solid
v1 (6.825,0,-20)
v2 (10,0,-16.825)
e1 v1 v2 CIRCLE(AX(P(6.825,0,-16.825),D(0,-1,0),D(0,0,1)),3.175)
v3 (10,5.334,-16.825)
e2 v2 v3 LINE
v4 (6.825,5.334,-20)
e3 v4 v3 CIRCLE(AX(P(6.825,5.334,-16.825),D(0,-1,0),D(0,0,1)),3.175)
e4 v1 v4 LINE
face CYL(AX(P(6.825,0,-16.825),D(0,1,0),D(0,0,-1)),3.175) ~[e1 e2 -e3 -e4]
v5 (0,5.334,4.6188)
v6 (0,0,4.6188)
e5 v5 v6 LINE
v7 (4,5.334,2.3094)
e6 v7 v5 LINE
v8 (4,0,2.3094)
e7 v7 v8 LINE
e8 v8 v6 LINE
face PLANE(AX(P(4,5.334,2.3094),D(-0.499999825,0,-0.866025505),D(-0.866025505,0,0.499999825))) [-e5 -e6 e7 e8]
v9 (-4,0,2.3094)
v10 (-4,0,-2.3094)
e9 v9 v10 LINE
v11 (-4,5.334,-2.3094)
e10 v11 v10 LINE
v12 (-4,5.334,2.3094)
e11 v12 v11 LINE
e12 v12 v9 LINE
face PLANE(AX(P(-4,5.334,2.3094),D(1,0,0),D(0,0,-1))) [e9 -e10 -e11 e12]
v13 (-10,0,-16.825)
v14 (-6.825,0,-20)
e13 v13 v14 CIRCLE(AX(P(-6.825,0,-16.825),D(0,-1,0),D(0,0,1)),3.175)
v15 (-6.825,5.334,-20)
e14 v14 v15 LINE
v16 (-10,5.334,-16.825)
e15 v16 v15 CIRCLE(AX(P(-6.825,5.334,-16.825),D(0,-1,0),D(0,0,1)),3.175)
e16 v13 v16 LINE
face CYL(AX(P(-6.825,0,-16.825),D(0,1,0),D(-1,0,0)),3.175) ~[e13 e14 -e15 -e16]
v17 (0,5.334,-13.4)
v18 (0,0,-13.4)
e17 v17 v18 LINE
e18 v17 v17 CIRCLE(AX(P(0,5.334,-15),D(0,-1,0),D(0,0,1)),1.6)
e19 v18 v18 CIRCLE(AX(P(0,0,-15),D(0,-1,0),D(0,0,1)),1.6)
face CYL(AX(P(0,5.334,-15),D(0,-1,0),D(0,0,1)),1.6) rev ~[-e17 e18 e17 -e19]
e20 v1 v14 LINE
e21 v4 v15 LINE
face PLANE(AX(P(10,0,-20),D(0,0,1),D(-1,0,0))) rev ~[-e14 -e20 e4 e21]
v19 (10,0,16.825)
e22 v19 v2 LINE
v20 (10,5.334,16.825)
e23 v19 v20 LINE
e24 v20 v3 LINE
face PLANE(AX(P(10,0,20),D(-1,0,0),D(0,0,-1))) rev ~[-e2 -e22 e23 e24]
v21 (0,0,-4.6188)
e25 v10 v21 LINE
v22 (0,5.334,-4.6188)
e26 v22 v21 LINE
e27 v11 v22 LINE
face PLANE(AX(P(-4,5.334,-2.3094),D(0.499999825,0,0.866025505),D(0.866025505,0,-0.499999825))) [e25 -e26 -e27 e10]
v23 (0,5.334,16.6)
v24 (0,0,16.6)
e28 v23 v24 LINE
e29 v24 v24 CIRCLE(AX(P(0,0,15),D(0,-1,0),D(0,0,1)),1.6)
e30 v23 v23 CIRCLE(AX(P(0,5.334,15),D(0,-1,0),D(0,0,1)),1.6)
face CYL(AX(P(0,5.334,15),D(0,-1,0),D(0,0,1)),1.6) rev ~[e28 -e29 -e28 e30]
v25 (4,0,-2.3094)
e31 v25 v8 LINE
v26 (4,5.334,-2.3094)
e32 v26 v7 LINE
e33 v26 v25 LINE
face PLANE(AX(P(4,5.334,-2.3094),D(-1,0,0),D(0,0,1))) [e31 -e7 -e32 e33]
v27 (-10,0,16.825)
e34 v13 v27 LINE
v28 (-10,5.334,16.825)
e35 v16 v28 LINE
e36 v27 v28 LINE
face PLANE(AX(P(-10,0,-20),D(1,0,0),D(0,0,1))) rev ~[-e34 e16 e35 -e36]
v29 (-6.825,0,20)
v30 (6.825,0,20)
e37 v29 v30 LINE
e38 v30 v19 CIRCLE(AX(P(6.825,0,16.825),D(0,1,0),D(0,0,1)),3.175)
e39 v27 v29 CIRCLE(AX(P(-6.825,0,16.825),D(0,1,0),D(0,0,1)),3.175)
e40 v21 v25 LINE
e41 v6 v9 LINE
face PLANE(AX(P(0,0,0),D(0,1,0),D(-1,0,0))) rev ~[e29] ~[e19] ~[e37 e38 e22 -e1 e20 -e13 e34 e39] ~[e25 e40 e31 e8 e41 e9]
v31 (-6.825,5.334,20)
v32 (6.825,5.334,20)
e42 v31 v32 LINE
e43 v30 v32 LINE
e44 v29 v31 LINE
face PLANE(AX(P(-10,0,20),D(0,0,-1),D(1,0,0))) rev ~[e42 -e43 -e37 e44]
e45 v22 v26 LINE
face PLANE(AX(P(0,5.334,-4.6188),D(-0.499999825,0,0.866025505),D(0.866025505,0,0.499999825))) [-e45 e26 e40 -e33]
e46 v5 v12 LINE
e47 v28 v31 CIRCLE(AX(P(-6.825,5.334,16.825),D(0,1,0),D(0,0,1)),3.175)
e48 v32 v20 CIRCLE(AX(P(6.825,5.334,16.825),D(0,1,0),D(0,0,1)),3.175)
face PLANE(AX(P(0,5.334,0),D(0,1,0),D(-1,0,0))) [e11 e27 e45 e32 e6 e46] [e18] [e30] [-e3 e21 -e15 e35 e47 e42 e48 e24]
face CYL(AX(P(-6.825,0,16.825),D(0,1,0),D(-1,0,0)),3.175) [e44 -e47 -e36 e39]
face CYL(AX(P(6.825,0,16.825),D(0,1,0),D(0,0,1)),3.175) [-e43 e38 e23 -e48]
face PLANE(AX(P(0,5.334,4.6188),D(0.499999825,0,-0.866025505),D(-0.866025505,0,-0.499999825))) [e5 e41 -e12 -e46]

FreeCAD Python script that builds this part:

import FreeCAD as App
import Part
import Sketcher

V = App.Vector
Q = App.Units.Quantity


def edges_at(feature, points):
    """Names of the edges that pass closest to the given points."""
    edges = feature.Shape.Edges
    near = lambda p: min(range(len(edges)), key=lambda i: edges[i].distToShape(Part.Vertex(*p))[0])
    return sorted({f"Edge{near(p) + 1}" for p in points})


def add_polygon(sketch, points):
    """Adds a closed chain of lines whose ends are joined by coincident constraints."""
    first, n = sketch.GeometryCount, len(points)
    for a, b in zip(points, points[1:] + points[:1]):
        sketch.addGeometry(Part.LineSegment(App.Vector(*a, 0), App.Vector(*b, 0)), False)
    for i in range(n):
        sketch.addConstraint(Sketcher.Constraint("Coincident", first + i, 2, first + (i + 1) % n, 1))

doc = App.newDocument("Part")
body = doc.addObject("PartDesign::Body", "Body")

sketch1 = body.newObject("Sketcher::SketchObject", "Sketch")
sketch1.AttachmentSupport = (doc.getObject("XZ_Plane"), [""])
sketch1.MapMode = "FlatFace"
add_polygon(sketch1, [(-10, -20), (-10, 20), (10, 20), (10, -20)])
sketch1.addConstraint(Sketcher.Constraint("Vertical", 0))
sketch1.addConstraint(Sketcher.Constraint("Horizontal", 1))
sketch1.addConstraint(Sketcher.Constraint("Vertical", 2))
sketch1.addConstraint(Sketcher.Constraint("Horizontal", 3))
sketch1.addConstraint(Sketcher.Constraint("Symmetric", 0, 2, 2, 2, -1, 1))
sketch1.addConstraint(Sketcher.Constraint("DistanceX", 1, 1, 1, 2, Q("0.7874 in")))
sketch1.addConstraint(Sketcher.Constraint("DistanceY", 0, 1, 0, 2, Q("1.5748 in")))
pad1 = body.newObject("PartDesign::Pad", "Pad")
pad1.Profile = sketch1
pad1.Length = Q("0.21 in")
pad1.Reversed = True

sketch2 = body.newObject("Sketcher::SketchObject", "Sketch001")
sketch2.AttachmentSupport = (doc.getObject("XZ_Plane"), [""])
sketch2.MapMode = "FlatFace"
sketch2.AttachmentOffset = App.Placement(V(0, 0, -0.21 * 25.4), App.Rotation())
add_polygon(sketch2, [(4, -2.3), (0, -4.6), (-4, -2.3), (-4, 2.3), (0, 4.6), (4, 2.3)])
sketch2.addConstraint(Sketcher.Constraint("Vertical", 2))
sketch2.addConstraint(Sketcher.Constraint("Vertical", 5))
sketch2.addConstraint(Sketcher.Constraint("Symmetric", 0, 2, 3, 2, -1, 1))
sketch2.addConstraint(Sketcher.Constraint("Symmetric", 1, 2, 4, 2, -1, 1))
sketch2.addConstraint(Sketcher.Constraint("PointOnObject", 0, 2, -2))
sketch2.addConstraint(Sketcher.Constraint("Parallel", 0, 3))
sketch2.addConstraint(Sketcher.Constraint("Horizontal", 2, 2, 4, 2))
sketch2.addConstraint(Sketcher.Constraint("Angle", 0, Q("-150 deg")))
sketch2.addConstraint(Sketcher.Constraint("DistanceX", 2, 2, 4, 2, Q("8 mm")))
sketch2.addConstraint(Sketcher.Constraint("DistanceY", 2, 1, 2, 2, Q("4.6188 mm")))
pocket1 = body.newObject("PartDesign::Pocket", "Pocket")
pocket1.Profile = sketch2
pocket1.Type = "ThroughAll"
pocket1.Reversed = True

sketch3 = body.newObject("Sketcher::SketchObject", "Sketch002")
sketch3.AttachmentSupport = (doc.getObject("XZ_Plane"), [""])
sketch3.MapMode = "FlatFace"
sketch3.AttachmentOffset = App.Placement(V(0, 0, -0.21 * 25.4), App.Rotation())
sketch3.addGeometry(Part.Circle(V(0, 15, 0), V(0, 0, 1), 1.6), False)
sketch3.addGeometry(Part.Circle(V(0, -15, 0), V(0, 0, 1), 1.6), False)
sketch3.addConstraint(Sketcher.Constraint("Equal", 0, 1))
sketch3.addConstraint(Sketcher.Constraint("Symmetric", 0, 3, 1, 3, -1, 1))
sketch3.addConstraint(Sketcher.Constraint("PointOnObject", 0, 3, -2))
sketch3.addConstraint(Sketcher.Constraint("Diameter", 0, Q("3.2 mm")))
sketch3.addConstraint(Sketcher.Constraint("DistanceY", 1, 3, 0, 3, Q("1.1811 in")))
doc.recompute()
hole = body.newObject("PartDesign::Hole", "Hole")
hole.Profile = sketch3
hole.ThreadType = "None"
hole.Diameter = 3.2
hole.DepthType = "ThroughAll"
hole.Reversed = True
doc.recompute()

fillet = body.newObject("PartDesign::Fillet", "Fillet")
fillet.Base = (hole, edges_at(hole, [
    (-10, 2.667, 20),
    (10, 2.667, 20),
    (10, 2.667, -20),
    (-10, 2.667, -20),
]))
fillet.Radius = Q("0.125 in")

doc.recompute()
